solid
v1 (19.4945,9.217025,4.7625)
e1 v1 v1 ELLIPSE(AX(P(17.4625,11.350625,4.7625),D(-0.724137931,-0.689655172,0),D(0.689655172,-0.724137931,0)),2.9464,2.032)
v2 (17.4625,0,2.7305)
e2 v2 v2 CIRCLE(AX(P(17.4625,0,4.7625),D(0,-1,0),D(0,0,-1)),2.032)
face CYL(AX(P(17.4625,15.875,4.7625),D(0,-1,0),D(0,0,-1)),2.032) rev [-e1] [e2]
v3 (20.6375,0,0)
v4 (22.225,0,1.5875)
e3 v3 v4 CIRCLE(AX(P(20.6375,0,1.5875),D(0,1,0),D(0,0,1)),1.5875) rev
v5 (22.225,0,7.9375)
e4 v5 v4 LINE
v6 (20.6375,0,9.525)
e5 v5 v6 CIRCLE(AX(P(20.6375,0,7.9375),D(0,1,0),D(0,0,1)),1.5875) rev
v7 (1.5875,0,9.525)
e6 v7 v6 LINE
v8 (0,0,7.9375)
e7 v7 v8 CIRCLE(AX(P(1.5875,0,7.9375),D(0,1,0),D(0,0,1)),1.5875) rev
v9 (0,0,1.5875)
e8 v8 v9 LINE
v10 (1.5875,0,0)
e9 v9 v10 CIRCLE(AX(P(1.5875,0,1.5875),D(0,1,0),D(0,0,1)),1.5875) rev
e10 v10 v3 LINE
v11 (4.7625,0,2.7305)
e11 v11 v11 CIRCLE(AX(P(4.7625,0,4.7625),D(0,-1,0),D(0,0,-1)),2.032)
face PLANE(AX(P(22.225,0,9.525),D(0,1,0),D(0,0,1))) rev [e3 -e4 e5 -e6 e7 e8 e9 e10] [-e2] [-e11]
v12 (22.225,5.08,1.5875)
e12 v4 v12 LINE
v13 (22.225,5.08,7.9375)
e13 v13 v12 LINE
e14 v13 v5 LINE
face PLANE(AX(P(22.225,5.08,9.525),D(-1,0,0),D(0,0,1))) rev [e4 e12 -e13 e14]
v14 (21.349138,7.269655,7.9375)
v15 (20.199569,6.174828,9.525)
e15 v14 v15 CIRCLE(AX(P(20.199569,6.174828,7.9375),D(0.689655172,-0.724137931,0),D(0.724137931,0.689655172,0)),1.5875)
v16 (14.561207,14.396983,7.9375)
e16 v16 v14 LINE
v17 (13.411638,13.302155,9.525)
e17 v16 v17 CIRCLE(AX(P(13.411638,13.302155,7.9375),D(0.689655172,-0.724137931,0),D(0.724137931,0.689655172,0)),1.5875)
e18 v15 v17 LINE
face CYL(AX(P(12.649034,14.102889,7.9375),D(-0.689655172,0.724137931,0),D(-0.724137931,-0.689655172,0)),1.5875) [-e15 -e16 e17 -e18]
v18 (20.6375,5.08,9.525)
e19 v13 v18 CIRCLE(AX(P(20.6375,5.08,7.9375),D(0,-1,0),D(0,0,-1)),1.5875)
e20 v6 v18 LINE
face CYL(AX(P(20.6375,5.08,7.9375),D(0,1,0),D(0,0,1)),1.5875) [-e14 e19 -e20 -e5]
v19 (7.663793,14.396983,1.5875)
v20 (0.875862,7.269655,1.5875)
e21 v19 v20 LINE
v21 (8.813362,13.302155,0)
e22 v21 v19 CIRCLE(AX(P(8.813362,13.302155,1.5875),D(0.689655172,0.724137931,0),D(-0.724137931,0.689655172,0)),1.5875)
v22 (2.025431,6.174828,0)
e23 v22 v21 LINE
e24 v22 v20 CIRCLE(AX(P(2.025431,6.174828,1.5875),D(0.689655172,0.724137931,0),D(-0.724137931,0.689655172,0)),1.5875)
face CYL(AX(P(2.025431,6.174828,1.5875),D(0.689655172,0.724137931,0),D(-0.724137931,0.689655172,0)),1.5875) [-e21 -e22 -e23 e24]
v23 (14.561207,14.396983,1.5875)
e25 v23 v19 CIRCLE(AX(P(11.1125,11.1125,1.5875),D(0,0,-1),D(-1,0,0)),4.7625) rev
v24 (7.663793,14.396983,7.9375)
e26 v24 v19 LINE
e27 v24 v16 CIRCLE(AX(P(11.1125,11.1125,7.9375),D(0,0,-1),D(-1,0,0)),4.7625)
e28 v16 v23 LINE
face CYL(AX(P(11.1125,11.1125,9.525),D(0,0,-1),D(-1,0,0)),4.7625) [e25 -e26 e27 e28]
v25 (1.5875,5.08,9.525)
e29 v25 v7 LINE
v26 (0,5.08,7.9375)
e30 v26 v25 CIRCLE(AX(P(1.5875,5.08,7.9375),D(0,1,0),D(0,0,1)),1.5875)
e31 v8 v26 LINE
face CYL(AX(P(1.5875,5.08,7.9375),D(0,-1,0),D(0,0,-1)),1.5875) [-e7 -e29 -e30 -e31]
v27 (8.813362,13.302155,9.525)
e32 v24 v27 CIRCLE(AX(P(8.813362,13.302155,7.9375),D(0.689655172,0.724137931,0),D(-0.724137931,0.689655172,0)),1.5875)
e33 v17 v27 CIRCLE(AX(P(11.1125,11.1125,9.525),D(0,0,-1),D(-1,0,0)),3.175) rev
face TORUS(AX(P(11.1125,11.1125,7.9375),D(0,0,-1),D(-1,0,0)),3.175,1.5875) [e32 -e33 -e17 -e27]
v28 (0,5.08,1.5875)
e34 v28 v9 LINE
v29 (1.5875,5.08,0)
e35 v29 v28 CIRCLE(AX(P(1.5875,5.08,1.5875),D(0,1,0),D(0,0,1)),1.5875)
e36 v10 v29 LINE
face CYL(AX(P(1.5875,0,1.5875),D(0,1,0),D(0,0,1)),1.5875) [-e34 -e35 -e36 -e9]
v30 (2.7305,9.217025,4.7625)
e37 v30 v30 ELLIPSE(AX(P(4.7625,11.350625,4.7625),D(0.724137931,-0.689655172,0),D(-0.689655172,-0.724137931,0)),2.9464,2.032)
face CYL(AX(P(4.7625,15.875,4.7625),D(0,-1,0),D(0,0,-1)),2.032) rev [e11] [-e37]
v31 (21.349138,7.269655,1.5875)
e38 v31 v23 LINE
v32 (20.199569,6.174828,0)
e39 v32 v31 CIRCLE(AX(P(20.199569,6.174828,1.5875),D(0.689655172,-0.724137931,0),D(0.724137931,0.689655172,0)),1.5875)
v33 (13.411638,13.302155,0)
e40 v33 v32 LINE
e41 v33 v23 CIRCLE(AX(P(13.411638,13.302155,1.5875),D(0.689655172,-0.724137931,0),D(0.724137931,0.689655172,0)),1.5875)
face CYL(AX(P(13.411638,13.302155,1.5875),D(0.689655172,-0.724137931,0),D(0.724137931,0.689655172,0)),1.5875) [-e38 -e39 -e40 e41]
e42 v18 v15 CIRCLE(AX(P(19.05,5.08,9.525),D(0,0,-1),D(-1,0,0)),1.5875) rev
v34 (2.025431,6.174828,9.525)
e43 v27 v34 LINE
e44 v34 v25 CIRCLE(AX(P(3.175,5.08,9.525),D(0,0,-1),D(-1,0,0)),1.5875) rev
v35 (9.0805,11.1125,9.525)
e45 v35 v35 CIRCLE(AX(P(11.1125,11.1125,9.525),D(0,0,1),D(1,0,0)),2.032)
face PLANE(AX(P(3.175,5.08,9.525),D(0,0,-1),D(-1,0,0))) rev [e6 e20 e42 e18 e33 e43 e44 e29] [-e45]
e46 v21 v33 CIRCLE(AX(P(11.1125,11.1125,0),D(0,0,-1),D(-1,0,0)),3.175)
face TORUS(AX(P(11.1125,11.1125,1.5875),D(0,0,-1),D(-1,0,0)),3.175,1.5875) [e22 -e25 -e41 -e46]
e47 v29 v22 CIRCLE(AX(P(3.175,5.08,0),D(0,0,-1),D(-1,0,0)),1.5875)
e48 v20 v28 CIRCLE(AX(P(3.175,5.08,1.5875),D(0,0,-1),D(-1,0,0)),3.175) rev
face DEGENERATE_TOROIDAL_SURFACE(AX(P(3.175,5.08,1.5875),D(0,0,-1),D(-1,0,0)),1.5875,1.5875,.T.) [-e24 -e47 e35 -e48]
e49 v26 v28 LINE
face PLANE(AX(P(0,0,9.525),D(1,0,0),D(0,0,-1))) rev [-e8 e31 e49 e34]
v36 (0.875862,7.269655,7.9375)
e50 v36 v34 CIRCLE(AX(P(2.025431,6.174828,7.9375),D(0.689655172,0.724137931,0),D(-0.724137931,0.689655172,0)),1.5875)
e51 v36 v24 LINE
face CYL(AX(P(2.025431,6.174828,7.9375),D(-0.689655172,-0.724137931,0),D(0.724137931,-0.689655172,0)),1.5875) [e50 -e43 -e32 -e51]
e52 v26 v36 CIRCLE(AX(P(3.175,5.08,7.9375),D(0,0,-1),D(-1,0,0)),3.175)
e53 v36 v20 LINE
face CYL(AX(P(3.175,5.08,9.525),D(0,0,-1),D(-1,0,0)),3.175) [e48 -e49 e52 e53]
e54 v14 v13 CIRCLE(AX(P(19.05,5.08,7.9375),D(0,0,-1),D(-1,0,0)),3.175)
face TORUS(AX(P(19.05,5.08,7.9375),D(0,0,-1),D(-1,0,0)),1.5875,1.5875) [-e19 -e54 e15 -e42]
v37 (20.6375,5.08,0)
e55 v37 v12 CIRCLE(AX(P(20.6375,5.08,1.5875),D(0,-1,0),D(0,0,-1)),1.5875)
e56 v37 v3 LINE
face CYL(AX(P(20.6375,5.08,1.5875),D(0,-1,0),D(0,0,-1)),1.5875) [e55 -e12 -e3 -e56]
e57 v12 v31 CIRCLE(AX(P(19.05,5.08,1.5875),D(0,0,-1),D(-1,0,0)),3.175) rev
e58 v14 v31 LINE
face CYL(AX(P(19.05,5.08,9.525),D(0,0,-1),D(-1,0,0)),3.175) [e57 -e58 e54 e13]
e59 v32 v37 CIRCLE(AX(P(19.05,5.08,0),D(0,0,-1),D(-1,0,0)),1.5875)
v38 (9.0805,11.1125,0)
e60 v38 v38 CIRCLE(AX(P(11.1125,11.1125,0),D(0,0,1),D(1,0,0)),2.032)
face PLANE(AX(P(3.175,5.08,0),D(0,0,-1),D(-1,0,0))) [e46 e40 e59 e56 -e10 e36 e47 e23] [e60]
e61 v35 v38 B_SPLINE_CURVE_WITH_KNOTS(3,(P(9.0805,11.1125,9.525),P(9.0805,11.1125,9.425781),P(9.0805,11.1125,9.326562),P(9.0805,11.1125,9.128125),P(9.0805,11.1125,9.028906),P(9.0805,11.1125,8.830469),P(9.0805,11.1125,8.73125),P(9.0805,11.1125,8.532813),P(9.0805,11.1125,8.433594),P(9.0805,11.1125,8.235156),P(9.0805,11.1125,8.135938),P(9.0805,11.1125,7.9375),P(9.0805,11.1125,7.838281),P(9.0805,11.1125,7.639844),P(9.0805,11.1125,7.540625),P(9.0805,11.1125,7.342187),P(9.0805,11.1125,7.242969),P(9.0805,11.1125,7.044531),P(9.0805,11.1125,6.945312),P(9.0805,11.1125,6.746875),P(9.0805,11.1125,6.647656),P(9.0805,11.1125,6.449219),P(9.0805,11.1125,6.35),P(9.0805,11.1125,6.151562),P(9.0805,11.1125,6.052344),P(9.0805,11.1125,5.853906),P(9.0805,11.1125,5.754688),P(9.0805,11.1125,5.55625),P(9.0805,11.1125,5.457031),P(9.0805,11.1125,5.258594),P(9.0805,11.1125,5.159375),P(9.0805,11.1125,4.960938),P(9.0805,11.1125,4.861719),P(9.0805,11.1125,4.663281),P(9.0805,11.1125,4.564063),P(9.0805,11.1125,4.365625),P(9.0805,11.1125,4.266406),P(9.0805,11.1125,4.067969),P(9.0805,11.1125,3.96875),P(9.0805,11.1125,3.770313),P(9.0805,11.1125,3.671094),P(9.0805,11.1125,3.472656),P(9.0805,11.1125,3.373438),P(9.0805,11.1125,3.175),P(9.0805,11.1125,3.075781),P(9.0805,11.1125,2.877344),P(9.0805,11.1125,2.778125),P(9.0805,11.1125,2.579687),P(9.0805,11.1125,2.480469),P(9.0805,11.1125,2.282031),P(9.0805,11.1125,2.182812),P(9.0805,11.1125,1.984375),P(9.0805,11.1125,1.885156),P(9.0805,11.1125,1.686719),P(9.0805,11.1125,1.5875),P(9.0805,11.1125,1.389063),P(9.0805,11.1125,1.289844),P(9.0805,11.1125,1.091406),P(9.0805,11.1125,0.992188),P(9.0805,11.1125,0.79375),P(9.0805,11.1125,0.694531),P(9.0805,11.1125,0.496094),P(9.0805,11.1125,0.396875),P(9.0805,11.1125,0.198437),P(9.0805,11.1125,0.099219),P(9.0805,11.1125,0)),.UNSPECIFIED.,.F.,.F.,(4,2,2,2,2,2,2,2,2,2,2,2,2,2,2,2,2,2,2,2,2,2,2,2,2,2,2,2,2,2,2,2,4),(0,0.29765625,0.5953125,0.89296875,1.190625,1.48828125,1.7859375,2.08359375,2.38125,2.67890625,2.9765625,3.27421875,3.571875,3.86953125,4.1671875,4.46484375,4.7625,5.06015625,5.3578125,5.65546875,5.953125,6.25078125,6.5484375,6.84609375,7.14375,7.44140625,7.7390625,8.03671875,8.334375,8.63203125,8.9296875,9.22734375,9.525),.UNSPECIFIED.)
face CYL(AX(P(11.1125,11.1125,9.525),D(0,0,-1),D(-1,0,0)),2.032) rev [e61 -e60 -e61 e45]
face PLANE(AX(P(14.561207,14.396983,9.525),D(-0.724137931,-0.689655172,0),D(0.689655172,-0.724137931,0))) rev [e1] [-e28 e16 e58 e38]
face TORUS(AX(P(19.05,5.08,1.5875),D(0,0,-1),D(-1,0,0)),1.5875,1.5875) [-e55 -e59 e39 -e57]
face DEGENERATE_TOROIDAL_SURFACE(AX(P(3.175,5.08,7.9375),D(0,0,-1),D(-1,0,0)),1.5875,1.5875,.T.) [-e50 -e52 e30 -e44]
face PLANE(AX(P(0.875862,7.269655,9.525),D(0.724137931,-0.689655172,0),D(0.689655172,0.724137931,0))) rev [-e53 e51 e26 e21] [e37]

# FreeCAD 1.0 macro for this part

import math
import FreeCAD as App
import Part
import Sketcher
Q = App.Units.Quantity


def edges_at(feature, points):
    """Names of the edges that pass closest to the given points."""
    edges = feature.Shape.Edges
    near = lambda p: min(range(len(edges)), key=lambda i: edges[i].distToShape(Part.Vertex(*p))[0])
    return sorted({f"Edge{near(p) + 1}" for p in points})

doc = App.newDocument("Part")
body = doc.addObject("PartDesign::Body", "Body")

# Sketch on XY plane
sketch1 = doc.addObject("Sketcher::SketchObject", "Sketch")
body.addObject(sketch1)
sketch1.AttachmentSupport = (doc.XY_Plane, [""])
sketch1.MapMode = "FlatFace"
sketch1.addGeometry([
    Part.LineSegment(App.Vector(0, 5.1, 0), App.Vector(0, 0, 0)),  # 0
    Part.LineSegment(App.Vector(0, 0, 0), App.Vector(22.2, 0, 0)),  # 1
    Part.LineSegment(App.Vector(22.2, 0, 0), App.Vector(22.2, 5.1, 0)),  # 2
    Part.ArcOfCircle(Part.Circle(App.Vector(19.1, 5.1, 0), App.Vector(0, 0, 1), 3.2), math.radians(0), math.radians(44)),  # 3
    Part.LineSegment(App.Vector(21.3, 7.3, 0), App.Vector(14.6, 14.4, 0)),  # 4
    Part.ArcOfCircle(Part.Circle(App.Vector(11.1, 11.1, 0), App.Vector(0, 0, 1), 4.8), math.radians(44), math.radians(136)),  # 5
    Part.LineSegment(App.Vector(7.7, 14.4, 0), App.Vector(0.9, 7.3, 0)),  # 6
    Part.ArcOfCircle(Part.Circle(App.Vector(3.2, 5.1, 0), App.Vector(0, 0, 1), 3.2), math.radians(136), math.radians(180)),  # 7
    Part.Circle(App.Vector(11.1, 11.1, 0), App.Vector(0, 0, 1), 2),  # 8
], False)
sketch1.addConstraint([
    Sketcher.Constraint("Coincident", 0, 2, 1, 1),
    Sketcher.Constraint("Coincident", 1, 2, 2, 1),
    Sketcher.Constraint("Tangent", 2, 2, 3, 1),
    Sketcher.Constraint("Tangent", 3, 2, 4, 1),
    Sketcher.Constraint("Tangent", 4, 2, 5, 1),
    Sketcher.Constraint("Tangent", 5, 2, 6, 1),
    Sketcher.Constraint("Tangent", 6, 2, 7, 1),
    Sketcher.Constraint("Tangent", 7, 2, 0, 1),
    Sketcher.Constraint("Vertical", 0),
    Sketcher.Constraint("Horizontal", 1),
    Sketcher.Constraint("Vertical", 2),
    Sketcher.Constraint("Coincident", 0, 2, -1, 1),
    Sketcher.Constraint("Coincident", 8, 3, 5, 3),
    Sketcher.Constraint("Equal", 3, 7),
    Sketcher.Constraint("Horizontal", 3, 3, 7, 3),
    Sketcher.Constraint("Horizontal", 4, 2, 5, 2),
    Sketcher.Constraint("Diameter", 8, Q("0.16 in")),
    Sketcher.Constraint("DistanceY", 0, 2, 0, 1, Q("0.2 in")),
    Sketcher.Constraint("Radius", 3, Q("0.125 in")),
    Sketcher.Constraint("Radius", 5, Q("0.1875 in")),
    Sketcher.Constraint("DistanceX", 1, 1, 1, 2, Q("0.875 in")),
    Sketcher.Constraint("DistanceY", -1, 1, 5, 3, Q("0.4375 in")),
])
pad1 = doc.addObject("PartDesign::Pad", "Pad")
body.addObject(pad1)
pad1.Profile = sketch1
pad1.Length = Q("0.375 in")

# Sketch on XZ plane
sketch2 = doc.addObject("Sketcher::SketchObject", "Sketch001")
body.addObject(sketch2)
sketch2.AttachmentSupport = (doc.XZ_Plane, [""])
sketch2.MapMode = "FlatFace"
sketch2.addGeometry([
    Part.Circle(App.Vector(4.8, 4.8, 0), App.Vector(0, 0, 1), 2),
    Part.Circle(App.Vector(17.5, 4.8, 0), App.Vector(0, 0, 1), 2),
], False)
sketch2.addConstraint([
    Sketcher.Constraint("Equal", 0, 1),
    Sketcher.Constraint("Horizontal", 0, 3, 1, 3),
    Sketcher.Constraint("Diameter", 0, Q("0.16 in")),
    Sketcher.Constraint("DistanceX", 0, 3, 1, 3, Q("0.5 in")),
    Sketcher.Constraint("DistanceX", -1, 1, 0, 3, Q("0.1875 in")),
    Sketcher.Constraint("DistanceY", -1, 1, 0, 3, Q("0.1875 in")),
])
pocket1 = doc.addObject("PartDesign::Pocket", "Pocket")
body.addObject(pocket1)
pocket1.Profile = sketch2
pocket1.Type = "ThroughAll"
doc.recompute()

fillet = doc.addObject("PartDesign::Fillet", "Fillet")
body.addObject(fillet)
fillet.Base = (pocket1, edges_at(pocket1, [
    (17.955, 10.833, 0),
    (21.998, 6.259, 0),
    (22.225, 2.54, 0),
    (21.998, 6.259, 9.525),
    (17.955, 10.833, 9.525),
    (11.113, 15.875, 9.525),
    (4.27, 10.833, 9.525),
    (0.227, 6.259, 9.525),
    (0, 2.54, 9.525),
    (0, 2.54, 0),
    (22.225, 2.54, 9.525),
    (0.227, 6.259, 0),
    (4.27, 10.833, 0),
    (11.113, 15.875, 0),
]))
fillet.Radius = Q("0.0625 in")

doc.recompute()
